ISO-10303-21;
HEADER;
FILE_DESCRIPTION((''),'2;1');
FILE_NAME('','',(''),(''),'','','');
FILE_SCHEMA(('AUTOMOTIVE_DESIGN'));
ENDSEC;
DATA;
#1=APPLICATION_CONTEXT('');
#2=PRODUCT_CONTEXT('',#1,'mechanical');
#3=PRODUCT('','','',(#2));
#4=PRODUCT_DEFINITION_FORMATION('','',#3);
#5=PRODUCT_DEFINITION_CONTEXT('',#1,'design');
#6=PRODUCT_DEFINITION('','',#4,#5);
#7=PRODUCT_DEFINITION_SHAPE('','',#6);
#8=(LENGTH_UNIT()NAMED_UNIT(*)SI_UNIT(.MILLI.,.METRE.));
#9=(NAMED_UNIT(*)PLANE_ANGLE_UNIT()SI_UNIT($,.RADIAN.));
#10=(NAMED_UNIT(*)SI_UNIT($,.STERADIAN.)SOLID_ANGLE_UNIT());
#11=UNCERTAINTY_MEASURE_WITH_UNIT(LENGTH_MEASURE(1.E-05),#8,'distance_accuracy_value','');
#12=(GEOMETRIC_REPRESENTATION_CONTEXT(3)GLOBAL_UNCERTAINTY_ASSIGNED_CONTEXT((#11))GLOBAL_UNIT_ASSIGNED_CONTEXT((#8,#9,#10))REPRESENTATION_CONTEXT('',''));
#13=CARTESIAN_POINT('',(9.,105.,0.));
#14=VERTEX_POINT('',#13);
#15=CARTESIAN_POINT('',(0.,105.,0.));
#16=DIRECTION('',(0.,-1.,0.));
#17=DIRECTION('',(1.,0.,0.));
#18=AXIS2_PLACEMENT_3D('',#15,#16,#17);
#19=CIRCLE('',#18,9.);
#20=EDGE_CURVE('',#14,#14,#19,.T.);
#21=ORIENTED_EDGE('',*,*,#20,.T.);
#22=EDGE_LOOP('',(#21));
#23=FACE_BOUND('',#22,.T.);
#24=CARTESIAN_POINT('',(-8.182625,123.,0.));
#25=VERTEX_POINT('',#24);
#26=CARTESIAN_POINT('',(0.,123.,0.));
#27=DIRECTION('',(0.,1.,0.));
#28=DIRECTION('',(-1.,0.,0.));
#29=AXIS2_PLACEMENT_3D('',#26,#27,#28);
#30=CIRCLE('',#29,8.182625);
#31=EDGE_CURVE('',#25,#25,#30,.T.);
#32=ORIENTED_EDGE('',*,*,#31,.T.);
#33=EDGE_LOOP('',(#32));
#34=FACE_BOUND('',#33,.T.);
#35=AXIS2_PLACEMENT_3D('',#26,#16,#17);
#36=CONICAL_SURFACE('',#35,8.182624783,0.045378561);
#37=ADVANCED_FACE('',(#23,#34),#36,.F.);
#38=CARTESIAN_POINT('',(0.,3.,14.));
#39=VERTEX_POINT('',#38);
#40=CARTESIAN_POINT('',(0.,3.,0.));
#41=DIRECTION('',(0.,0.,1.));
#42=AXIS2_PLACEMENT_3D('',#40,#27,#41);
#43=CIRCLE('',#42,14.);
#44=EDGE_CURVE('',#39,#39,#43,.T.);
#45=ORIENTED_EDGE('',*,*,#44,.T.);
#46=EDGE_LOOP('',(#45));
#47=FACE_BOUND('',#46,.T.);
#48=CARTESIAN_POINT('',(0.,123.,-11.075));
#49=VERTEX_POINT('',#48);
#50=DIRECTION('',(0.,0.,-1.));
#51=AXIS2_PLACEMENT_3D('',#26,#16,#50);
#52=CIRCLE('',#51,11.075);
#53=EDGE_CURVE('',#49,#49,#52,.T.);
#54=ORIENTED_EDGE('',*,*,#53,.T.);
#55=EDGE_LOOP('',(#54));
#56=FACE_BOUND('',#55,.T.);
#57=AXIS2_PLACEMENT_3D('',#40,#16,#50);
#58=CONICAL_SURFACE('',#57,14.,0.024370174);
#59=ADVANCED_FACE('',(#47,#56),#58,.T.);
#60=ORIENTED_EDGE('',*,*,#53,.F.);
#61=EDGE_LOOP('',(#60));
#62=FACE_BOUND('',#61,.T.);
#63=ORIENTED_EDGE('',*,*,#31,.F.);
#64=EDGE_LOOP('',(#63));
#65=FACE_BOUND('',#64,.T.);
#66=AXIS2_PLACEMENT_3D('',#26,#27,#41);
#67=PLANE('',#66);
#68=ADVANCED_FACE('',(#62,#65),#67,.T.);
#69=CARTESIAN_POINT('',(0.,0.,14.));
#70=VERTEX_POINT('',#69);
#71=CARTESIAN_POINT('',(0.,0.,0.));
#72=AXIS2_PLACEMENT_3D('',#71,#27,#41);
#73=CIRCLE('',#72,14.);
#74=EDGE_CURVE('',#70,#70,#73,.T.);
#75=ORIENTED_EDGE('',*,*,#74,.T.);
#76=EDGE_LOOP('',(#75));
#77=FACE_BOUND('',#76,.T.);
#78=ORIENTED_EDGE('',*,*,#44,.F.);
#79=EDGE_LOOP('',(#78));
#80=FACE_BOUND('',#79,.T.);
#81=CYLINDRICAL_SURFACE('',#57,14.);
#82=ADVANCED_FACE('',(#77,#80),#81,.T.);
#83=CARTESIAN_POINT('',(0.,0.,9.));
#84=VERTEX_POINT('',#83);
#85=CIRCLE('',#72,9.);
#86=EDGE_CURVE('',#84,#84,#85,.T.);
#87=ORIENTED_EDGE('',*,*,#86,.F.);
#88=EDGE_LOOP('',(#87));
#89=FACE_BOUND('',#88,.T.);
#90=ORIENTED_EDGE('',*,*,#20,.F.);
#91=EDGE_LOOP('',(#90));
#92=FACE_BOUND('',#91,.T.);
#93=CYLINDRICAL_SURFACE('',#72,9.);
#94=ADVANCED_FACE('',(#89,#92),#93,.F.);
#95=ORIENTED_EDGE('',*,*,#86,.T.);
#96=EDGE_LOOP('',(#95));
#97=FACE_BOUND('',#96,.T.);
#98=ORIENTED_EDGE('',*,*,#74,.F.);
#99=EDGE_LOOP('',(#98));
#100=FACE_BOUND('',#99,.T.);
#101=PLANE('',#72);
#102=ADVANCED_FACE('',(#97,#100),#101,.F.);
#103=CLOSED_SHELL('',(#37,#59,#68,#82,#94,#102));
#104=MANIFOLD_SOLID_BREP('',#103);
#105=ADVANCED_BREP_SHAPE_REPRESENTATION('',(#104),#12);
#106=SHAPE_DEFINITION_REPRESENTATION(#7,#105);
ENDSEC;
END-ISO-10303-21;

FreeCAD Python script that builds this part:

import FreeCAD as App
import Part
import Sketcher
Q = App.Units.Quantity


def add_polygon(sketch, points):
    """Adds a closed chain of lines whose ends are joined by coincident constraints."""
    first, n = sketch.GeometryCount, len(points)
    for a, b in zip(points, points[1:] + points[:1]):
        sketch.addGeometry(Part.LineSegment(App.Vector(*a, 0), App.Vector(*b, 0)), False)
    for i in range(n):
        sketch.addConstraint(Sketcher.Constraint("Coincident", first + i, 2, first + (i + 1) % n, 1))

doc = App.newDocument("Part")
params = doc.addObject("Spreadsheet::Sheet", "Params")
for row, (alias, value) in enumerate([
    ("sketch1_diameter", "28 mm"),
    ("pad1_length", "3 mm"),
    ("sketch2_diameter", "22.15 mm"),
    ("pad2_length", "120 mm"),
    ("sketch3_height", "120 mm"),
    ("revolution_angle", "360 deg"),
    ("sketch4_diameter", "18 mm"),
    ("sketch5_height", "18 mm"),
    ("revolution2_angle", "360 deg"),
], start=1):
    params.set(f"A{row}", alias)
    params.set(f"B{row}", "=" + value)
    params.setAlias(f"B{row}", alias)

body = doc.addObject("PartDesign::Body", "Body")

sketch1 = body.newObject("Sketcher::SketchObject", "Sketch")
sketch1.AttachmentSupport = (doc.getObject("XZ_Plane"), [""])
sketch1.MapMode = "FlatFace"
sketch1.addGeometry(Part.Circle(App.Vector(0, 0, 0), App.Vector(0, 0, 1), 14), False)
sketch1.addConstraint(Sketcher.Constraint("Coincident", 0, 3, -1, 1))
sketch1.addConstraint(Sketcher.Constraint("Diameter", 0, 28.0))
sketch1.setExpression("Constraints[1]", "Params.sketch1_diameter")
pad1 = body.newObject("PartDesign::Pad", "Pad")
pad1.Profile = sketch1
pad1.setExpression("Length", "Params.pad1_length")
pad1.Reversed = True

sketch2 = body.newObject("Sketcher::SketchObject", "Sketch001")
sketch2.AttachmentSupport = (doc.getObject("XZ_Plane"), [""])
sketch2.MapMode = "FlatFace"
sketch2.AttachmentOffset = App.Placement(App.Vector(0, 0, -3), App.Rotation())
sketch2.addGeometry(Part.Circle(App.Vector(0, 0, 0), App.Vector(0, 0, 1), 11), False)
sketch2.addConstraint(Sketcher.Constraint("Coincident", 0, 3, -1, 1))
sketch2.addConstraint(Sketcher.Constraint("Diameter", 0, 22.15))
sketch2.setExpression("Constraints[1]", "Params.sketch2_diameter")
pad2 = body.newObject("PartDesign::Pad", "Pad001")
pad2.Profile = sketch2
pad2.setExpression("Length", "Params.pad2_length")
pad2.Reversed = True

sketch3 = body.newObject("Sketcher::SketchObject", "Sketch002")
sketch3.AttachmentSupport = (doc.getObject("XY_Plane"), [""])
sketch3.MapMode = "FlatFace"
add_polygon(sketch3, [(11.1, 3), (14, 3), (11.1, 123)])
sketch3.addConstraint(Sketcher.Constraint("Horizontal", 0))
sketch3.addConstraint(Sketcher.Constraint("Vertical", 2))
sketch3.addConstraint(Sketcher.Constraint("DistanceY", 2, 2, 2, 1, 120.0))
sketch3.addConstraint(Sketcher.Constraint("DistanceX", -1, 1, 0, 2, 14.0))
sketch3.addConstraint(Sketcher.Constraint("DistanceY", -1, 1, 0, 2, 3.0))
sketch3.addConstraint(Sketcher.Constraint("DistanceX", 0, 1, 0, 2, 2.925))
sketch3.setExpression("Constraints[5]", "Params.sketch3_height")
revolution = body.newObject("PartDesign::Revolution", "Revolution")
revolution.Profile = sketch3
revolution.ReferenceAxis = (sketch3, ["V_Axis"])
revolution.setExpression("Angle", "Params.revolution_angle")

sketch4 = body.newObject("Sketcher::SketchObject", "Sketch003")
sketch4.AttachmentSupport = (doc.getObject("XZ_Plane"), [""])
sketch4.MapMode = "FlatFace"
sketch4.AttachmentOffset = App.Placement(App.Vector(0, 0, -123), App.Rotation())
sketch4.addGeometry(Part.Circle(App.Vector(0, 0, 0), App.Vector(0, 0, 1), 9), False)
sketch4.addConstraint(Sketcher.Constraint("Coincident", 0, 3, -1, 1))
sketch4.addConstraint(Sketcher.Constraint("Diameter", 0, 18.0))
sketch4.setExpression("Constraints[1]", "Params.sketch4_diameter")
pocket1 = body.newObject("PartDesign::Pocket", "Pocket")
pocket1.Profile = sketch4
pocket1.Type = "ThroughAll"
pocket1.Reversed = True

sketch5 = body.newObject("Sketcher::SketchObject", "Sketch004")
sketch5.AttachmentSupport = (doc.getObject("XY_Plane"), [""])
sketch5.MapMode = "FlatFace"
add_polygon(sketch5, [(9, 105), (9, 123), (8.2, 123)])
sketch5.addConstraint(Sketcher.Constraint("Vertical", 0))
sketch5.addConstraint(Sketcher.Constraint("Horizontal", 1))
sketch5.addConstraint(Sketcher.Constraint("DistanceY", 0, 1, 0, 2, 18.0))
sketch5.addConstraint(Sketcher.Constraint("DistanceX", -1, 1, 0, 2, 9.0))
sketch5.addConstraint(Sketcher.Constraint("DistanceY", -1, 1, 0, 2, 123.0))
sketch5.addConstraint(Sketcher.Constraint("Angle", 2, Q("-87.4 deg")))
sketch5.setExpression("Constraints[5]", "Params.sketch5_height")
revolution2 = body.newObject("PartDesign::Revolution", "Revolution001")
revolution2.Profile = sketch5
revolution2.ReferenceAxis = (sketch5, ["V_Axis"])
revolution2.setExpression("Angle", "Params.revolution2_angle")

doc.recompute()
